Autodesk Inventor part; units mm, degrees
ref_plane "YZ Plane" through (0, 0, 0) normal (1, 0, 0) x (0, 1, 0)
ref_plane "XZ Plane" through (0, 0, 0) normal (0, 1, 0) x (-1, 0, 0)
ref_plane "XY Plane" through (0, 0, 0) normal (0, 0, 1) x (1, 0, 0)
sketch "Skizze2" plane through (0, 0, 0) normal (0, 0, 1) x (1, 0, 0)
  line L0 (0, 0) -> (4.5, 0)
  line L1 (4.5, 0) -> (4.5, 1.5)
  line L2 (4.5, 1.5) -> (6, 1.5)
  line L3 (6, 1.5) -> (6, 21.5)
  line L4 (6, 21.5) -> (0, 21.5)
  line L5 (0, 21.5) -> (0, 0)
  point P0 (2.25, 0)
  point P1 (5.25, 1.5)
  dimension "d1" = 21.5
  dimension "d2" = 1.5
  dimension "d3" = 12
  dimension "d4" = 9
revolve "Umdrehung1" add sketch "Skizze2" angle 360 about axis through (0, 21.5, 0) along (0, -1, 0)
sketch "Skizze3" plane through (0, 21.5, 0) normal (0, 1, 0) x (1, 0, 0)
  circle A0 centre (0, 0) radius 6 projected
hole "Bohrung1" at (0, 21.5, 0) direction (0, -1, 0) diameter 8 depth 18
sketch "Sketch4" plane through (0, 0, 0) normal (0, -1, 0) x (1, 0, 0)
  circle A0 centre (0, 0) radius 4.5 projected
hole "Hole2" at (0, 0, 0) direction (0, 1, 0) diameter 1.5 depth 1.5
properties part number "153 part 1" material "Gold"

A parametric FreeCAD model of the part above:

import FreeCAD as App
import Part
import Sketcher

V = App.Vector

doc = App.newDocument("Part")
body = doc.addObject("PartDesign::Body", "Body")

# Sketch on XY plane
sketch1 = body.newObject("Sketcher::SketchObject", "Sketch")
sketch1.AttachmentSupport = (doc.getObject("XY_Plane"), [""])
sketch1.MapMode = "FlatFace"
sketch1.addGeometry([
    Part.LineSegment(V(0, 21.5, 0), V(0, 0, 0)),  # 0
    Part.LineSegment(V(0, 0, 0), V(4.5, 0, 0)),  # 1
    Part.LineSegment(V(4.5, 0, 0), V(4.5, 1.5, 0)),  # 2
    Part.LineSegment(V(4.5, 1.5, 0), V(6, 1.5, 0)),  # 3
    Part.LineSegment(V(6, 1.5, 0), V(6, 21.5, 0)),  # 4
    Part.LineSegment(V(6, 21.5, 0), V(0, 21.5, 0)),  # 5
], False)
sketch1.addConstraint([
    Sketcher.Constraint("Coincident", 0, 2, 1, 1),
    Sketcher.Constraint("Coincident", 1, 2, 2, 1),
    Sketcher.Constraint("Coincident", 2, 2, 3, 1),
    Sketcher.Constraint("Coincident", 3, 2, 4, 1),
    Sketcher.Constraint("Coincident", 4, 2, 5, 1),
    Sketcher.Constraint("Coincident", 5, 2, 0, 1),
    Sketcher.Constraint("Vertical", 0),
    Sketcher.Constraint("Horizontal", 1),
    Sketcher.Constraint("Vertical", 2),
    Sketcher.Constraint("Horizontal", 3),
    Sketcher.Constraint("Vertical", 4),
    Sketcher.Constraint("Horizontal", 5),
    Sketcher.Constraint("Coincident", 0, 2, -1, 1),
    Sketcher.Constraint("Equal", 3, 2),
    Sketcher.Constraint("DistanceX", 3, 1, 3, 2, 1.5),
    Sketcher.Constraint("DistanceY", 0, 2, 0, 1, 21.5),
    Sketcher.Constraint("DistanceX", 5, 2, 5, 1, 6.0),
])
revolution = body.newObject("PartDesign::Revolution", "Revolution")
revolution.Profile = sketch1
revolution.ReferenceAxis = (sketch1, ["V_Axis"])
revolution.Angle = 360

# Sketch on XZ plane
sketch2 = body.newObject("Sketcher::SketchObject", "Sketch001")
sketch2.AttachmentSupport = (doc.getObject("XZ_Plane"), [""])
sketch2.MapMode = "FlatFace"
sketch2.AttachmentOffset = App.Placement(V(0, 0, -21.5), App.Rotation())
sketch2.addGeometry(Part.Circle(V(0, 0, 0), V(0, 0, 1), 4), False)
sketch2.addConstraint([
    Sketcher.Constraint("Coincident", 0, 3, -1, 1),
    Sketcher.Constraint("Diameter", 0, 8.0),
])
doc.recompute()
hole = body.newObject("PartDesign::Hole", "Hole")
hole.Profile = sketch2
hole.ThreadType = "None"
hole.Diameter = 8
hole.DepthType = "Dimension"
hole.Depth = 18
hole.DrillPoint = "Flat"
hole.Reversed = True

# Sketch on XZ plane
sketch3 = body.newObject("Sketcher::SketchObject", "Sketch002")
sketch3.AttachmentSupport = (doc.getObject("XZ_Plane"), [""])
sketch3.MapMode = "FlatFace"
sketch3.addGeometry(Part.Circle(V(0, 0, 0), V(0, 0, 1), 0.75), False)
sketch3.addConstraint([
    Sketcher.Constraint("Coincident", 0, 3, -1, 1),
    Sketcher.Constraint("Diameter", 0, 1.5),
])
doc.recompute()
hole2 = body.newObject("PartDesign::Hole", "Hole001")
hole2.Profile = sketch3
hole2.ThreadType = "None"
hole2.Diameter = 1.5
hole2.DepthType = "Dimension"
hole2.Depth = 1.5
hole2.DrillPoint = "Flat"

doc.recompute()
